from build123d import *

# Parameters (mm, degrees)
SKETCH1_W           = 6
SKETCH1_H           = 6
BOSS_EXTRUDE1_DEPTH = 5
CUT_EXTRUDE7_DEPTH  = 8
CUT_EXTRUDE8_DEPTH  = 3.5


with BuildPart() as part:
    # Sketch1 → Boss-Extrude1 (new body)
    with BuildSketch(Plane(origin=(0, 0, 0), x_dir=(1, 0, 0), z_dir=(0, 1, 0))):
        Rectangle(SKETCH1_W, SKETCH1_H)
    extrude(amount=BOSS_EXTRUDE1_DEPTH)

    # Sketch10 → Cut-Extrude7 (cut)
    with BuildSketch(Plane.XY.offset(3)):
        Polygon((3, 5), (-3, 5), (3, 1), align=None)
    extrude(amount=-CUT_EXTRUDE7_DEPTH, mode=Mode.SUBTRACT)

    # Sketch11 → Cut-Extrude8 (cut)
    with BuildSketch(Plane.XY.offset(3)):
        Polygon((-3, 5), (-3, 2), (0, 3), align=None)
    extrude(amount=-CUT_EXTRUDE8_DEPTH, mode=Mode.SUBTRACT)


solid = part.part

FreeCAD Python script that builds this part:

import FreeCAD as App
import Part
import Sketcher

V = App.Vector
Q = App.Units.Quantity

doc = App.newDocument("Part")
body = doc.addObject("PartDesign::Body", "Body")

# Sketch on XZ plane
sketch1 = body.newObject("Sketcher::SketchObject", "Sketch")
sketch1.AttachmentSupport = (doc.getObject("XZ_Plane"), [""])
sketch1.MapMode = "FlatFace"
sketch1.addGeometry([
    Part.LineSegment(V(-3, -3, 0), V(-3, 3, 0)),
    Part.LineSegment(V(-3, 3, 0), V(3, 3, 0)),
    Part.LineSegment(V(3, 3, 0), V(3, -3, 0)),
    Part.LineSegment(V(3, -3, 0), V(-3, -3, 0)),
], False)
sketch1.addConstraint([
    Sketcher.Constraint("Coincident", 0, 2, 1, 1),
    Sketcher.Constraint("Coincident", 1, 2, 2, 1),
    Sketcher.Constraint("Coincident", 2, 2, 3, 1),
    Sketcher.Constraint("Coincident", 3, 2, 0, 1),
    Sketcher.Constraint("Vertical", 0),
    Sketcher.Constraint("Horizontal", 1),
    Sketcher.Constraint("Vertical", 2),
    Sketcher.Constraint("Horizontal", 3),
    Sketcher.Constraint("Symmetric", 0, 2, 2, 2, -1, 1),
    Sketcher.Constraint("Equal", 3, 0),
    Sketcher.Constraint("DistanceX", 1, 1, 1, 2, Q("6 mm")),
])
pad1 = body.newObject("PartDesign::Pad", "Pad")
pad1.Profile = sketch1
pad1.Length = 5
pad1.Reversed = True

# Sketch on XY plane
sketch2 = body.newObject("Sketcher::SketchObject", "Sketch001")
sketch2.AttachmentSupport = (doc.getObject("XY_Plane"), [""])
sketch2.MapMode = "FlatFace"
sketch2.AttachmentOffset = App.Placement(V(0, 0, 3), App.Rotation())
sketch2.addGeometry([
    Part.LineSegment(V(3, 5, 0), V(-3, 5, 0)),
    Part.LineSegment(V(-3, 5, 0), V(3, 1, 0)),
    Part.LineSegment(V(3, 1, 0), V(3, 5, 0)),
], False)
sketch2.addConstraint([
    Sketcher.Constraint("Coincident", 0, 2, 1, 1),
    Sketcher.Constraint("Coincident", 1, 2, 2, 1),
    Sketcher.Constraint("Coincident", 2, 2, 0, 1),
    Sketcher.Constraint("Horizontal", 0),
    Sketcher.Constraint("Vertical", 2),
    Sketcher.Constraint("DistanceX", 0, 2, 0, 1, Q("6 mm")),
    Sketcher.Constraint("DistanceY", 2, 1, 2, 2, Q("4 mm")),
    Sketcher.Constraint("DistanceX", 0, 2, -1, 1, Q("3 mm")),
    Sketcher.Constraint("DistanceY", -1, 1, 0, 2, Q("5 mm")),
])
pocket1 = body.newObject("PartDesign::Pocket", "Pocket")
pocket1.Profile = sketch2
pocket1.Length = 8

# Sketch on XY plane
sketch3 = body.newObject("Sketcher::SketchObject", "Sketch002")
sketch3.AttachmentSupport = (doc.getObject("XY_Plane"), [""])
sketch3.MapMode = "FlatFace"
sketch3.AttachmentOffset = App.Placement(V(0, 0, 3), App.Rotation())
sketch3.addGeometry([
    Part.LineSegment(V(-3, 5, 0), V(-3, 2, 0)),
    Part.LineSegment(V(-3, 2, 0), V(0, 3, 0)),
    Part.LineSegment(V(0, 3, 0), V(-3, 5, 0)),
], False)
sketch3.addConstraint([
    Sketcher.Constraint("Coincident", 0, 2, 1, 1),
    Sketcher.Constraint("Coincident", 1, 2, 2, 1),
    Sketcher.Constraint("Coincident", 2, 2, 0, 1),
    Sketcher.Constraint("Vertical", 0),
    Sketcher.Constraint("PointOnObject", 1, 2, -2),
    Sketcher.Constraint("DistanceY", 0, 2, 0, 1, Q("3 mm")),
    Sketcher.Constraint("DistanceX", 0, 2, -1, 1, Q("3 mm")),
    Sketcher.Constraint("DistanceY", -1, 1, 0, 2, Q("2 mm")),
    Sketcher.Constraint("DistanceY", -1, 1, 1, 2, Q("3 mm")),
])
pocket2 = body.newObject("PartDesign::Pocket", "Pocket001")
pocket2.Profile = sketch3
pocket2.Length = 3.5

doc.recompute()
